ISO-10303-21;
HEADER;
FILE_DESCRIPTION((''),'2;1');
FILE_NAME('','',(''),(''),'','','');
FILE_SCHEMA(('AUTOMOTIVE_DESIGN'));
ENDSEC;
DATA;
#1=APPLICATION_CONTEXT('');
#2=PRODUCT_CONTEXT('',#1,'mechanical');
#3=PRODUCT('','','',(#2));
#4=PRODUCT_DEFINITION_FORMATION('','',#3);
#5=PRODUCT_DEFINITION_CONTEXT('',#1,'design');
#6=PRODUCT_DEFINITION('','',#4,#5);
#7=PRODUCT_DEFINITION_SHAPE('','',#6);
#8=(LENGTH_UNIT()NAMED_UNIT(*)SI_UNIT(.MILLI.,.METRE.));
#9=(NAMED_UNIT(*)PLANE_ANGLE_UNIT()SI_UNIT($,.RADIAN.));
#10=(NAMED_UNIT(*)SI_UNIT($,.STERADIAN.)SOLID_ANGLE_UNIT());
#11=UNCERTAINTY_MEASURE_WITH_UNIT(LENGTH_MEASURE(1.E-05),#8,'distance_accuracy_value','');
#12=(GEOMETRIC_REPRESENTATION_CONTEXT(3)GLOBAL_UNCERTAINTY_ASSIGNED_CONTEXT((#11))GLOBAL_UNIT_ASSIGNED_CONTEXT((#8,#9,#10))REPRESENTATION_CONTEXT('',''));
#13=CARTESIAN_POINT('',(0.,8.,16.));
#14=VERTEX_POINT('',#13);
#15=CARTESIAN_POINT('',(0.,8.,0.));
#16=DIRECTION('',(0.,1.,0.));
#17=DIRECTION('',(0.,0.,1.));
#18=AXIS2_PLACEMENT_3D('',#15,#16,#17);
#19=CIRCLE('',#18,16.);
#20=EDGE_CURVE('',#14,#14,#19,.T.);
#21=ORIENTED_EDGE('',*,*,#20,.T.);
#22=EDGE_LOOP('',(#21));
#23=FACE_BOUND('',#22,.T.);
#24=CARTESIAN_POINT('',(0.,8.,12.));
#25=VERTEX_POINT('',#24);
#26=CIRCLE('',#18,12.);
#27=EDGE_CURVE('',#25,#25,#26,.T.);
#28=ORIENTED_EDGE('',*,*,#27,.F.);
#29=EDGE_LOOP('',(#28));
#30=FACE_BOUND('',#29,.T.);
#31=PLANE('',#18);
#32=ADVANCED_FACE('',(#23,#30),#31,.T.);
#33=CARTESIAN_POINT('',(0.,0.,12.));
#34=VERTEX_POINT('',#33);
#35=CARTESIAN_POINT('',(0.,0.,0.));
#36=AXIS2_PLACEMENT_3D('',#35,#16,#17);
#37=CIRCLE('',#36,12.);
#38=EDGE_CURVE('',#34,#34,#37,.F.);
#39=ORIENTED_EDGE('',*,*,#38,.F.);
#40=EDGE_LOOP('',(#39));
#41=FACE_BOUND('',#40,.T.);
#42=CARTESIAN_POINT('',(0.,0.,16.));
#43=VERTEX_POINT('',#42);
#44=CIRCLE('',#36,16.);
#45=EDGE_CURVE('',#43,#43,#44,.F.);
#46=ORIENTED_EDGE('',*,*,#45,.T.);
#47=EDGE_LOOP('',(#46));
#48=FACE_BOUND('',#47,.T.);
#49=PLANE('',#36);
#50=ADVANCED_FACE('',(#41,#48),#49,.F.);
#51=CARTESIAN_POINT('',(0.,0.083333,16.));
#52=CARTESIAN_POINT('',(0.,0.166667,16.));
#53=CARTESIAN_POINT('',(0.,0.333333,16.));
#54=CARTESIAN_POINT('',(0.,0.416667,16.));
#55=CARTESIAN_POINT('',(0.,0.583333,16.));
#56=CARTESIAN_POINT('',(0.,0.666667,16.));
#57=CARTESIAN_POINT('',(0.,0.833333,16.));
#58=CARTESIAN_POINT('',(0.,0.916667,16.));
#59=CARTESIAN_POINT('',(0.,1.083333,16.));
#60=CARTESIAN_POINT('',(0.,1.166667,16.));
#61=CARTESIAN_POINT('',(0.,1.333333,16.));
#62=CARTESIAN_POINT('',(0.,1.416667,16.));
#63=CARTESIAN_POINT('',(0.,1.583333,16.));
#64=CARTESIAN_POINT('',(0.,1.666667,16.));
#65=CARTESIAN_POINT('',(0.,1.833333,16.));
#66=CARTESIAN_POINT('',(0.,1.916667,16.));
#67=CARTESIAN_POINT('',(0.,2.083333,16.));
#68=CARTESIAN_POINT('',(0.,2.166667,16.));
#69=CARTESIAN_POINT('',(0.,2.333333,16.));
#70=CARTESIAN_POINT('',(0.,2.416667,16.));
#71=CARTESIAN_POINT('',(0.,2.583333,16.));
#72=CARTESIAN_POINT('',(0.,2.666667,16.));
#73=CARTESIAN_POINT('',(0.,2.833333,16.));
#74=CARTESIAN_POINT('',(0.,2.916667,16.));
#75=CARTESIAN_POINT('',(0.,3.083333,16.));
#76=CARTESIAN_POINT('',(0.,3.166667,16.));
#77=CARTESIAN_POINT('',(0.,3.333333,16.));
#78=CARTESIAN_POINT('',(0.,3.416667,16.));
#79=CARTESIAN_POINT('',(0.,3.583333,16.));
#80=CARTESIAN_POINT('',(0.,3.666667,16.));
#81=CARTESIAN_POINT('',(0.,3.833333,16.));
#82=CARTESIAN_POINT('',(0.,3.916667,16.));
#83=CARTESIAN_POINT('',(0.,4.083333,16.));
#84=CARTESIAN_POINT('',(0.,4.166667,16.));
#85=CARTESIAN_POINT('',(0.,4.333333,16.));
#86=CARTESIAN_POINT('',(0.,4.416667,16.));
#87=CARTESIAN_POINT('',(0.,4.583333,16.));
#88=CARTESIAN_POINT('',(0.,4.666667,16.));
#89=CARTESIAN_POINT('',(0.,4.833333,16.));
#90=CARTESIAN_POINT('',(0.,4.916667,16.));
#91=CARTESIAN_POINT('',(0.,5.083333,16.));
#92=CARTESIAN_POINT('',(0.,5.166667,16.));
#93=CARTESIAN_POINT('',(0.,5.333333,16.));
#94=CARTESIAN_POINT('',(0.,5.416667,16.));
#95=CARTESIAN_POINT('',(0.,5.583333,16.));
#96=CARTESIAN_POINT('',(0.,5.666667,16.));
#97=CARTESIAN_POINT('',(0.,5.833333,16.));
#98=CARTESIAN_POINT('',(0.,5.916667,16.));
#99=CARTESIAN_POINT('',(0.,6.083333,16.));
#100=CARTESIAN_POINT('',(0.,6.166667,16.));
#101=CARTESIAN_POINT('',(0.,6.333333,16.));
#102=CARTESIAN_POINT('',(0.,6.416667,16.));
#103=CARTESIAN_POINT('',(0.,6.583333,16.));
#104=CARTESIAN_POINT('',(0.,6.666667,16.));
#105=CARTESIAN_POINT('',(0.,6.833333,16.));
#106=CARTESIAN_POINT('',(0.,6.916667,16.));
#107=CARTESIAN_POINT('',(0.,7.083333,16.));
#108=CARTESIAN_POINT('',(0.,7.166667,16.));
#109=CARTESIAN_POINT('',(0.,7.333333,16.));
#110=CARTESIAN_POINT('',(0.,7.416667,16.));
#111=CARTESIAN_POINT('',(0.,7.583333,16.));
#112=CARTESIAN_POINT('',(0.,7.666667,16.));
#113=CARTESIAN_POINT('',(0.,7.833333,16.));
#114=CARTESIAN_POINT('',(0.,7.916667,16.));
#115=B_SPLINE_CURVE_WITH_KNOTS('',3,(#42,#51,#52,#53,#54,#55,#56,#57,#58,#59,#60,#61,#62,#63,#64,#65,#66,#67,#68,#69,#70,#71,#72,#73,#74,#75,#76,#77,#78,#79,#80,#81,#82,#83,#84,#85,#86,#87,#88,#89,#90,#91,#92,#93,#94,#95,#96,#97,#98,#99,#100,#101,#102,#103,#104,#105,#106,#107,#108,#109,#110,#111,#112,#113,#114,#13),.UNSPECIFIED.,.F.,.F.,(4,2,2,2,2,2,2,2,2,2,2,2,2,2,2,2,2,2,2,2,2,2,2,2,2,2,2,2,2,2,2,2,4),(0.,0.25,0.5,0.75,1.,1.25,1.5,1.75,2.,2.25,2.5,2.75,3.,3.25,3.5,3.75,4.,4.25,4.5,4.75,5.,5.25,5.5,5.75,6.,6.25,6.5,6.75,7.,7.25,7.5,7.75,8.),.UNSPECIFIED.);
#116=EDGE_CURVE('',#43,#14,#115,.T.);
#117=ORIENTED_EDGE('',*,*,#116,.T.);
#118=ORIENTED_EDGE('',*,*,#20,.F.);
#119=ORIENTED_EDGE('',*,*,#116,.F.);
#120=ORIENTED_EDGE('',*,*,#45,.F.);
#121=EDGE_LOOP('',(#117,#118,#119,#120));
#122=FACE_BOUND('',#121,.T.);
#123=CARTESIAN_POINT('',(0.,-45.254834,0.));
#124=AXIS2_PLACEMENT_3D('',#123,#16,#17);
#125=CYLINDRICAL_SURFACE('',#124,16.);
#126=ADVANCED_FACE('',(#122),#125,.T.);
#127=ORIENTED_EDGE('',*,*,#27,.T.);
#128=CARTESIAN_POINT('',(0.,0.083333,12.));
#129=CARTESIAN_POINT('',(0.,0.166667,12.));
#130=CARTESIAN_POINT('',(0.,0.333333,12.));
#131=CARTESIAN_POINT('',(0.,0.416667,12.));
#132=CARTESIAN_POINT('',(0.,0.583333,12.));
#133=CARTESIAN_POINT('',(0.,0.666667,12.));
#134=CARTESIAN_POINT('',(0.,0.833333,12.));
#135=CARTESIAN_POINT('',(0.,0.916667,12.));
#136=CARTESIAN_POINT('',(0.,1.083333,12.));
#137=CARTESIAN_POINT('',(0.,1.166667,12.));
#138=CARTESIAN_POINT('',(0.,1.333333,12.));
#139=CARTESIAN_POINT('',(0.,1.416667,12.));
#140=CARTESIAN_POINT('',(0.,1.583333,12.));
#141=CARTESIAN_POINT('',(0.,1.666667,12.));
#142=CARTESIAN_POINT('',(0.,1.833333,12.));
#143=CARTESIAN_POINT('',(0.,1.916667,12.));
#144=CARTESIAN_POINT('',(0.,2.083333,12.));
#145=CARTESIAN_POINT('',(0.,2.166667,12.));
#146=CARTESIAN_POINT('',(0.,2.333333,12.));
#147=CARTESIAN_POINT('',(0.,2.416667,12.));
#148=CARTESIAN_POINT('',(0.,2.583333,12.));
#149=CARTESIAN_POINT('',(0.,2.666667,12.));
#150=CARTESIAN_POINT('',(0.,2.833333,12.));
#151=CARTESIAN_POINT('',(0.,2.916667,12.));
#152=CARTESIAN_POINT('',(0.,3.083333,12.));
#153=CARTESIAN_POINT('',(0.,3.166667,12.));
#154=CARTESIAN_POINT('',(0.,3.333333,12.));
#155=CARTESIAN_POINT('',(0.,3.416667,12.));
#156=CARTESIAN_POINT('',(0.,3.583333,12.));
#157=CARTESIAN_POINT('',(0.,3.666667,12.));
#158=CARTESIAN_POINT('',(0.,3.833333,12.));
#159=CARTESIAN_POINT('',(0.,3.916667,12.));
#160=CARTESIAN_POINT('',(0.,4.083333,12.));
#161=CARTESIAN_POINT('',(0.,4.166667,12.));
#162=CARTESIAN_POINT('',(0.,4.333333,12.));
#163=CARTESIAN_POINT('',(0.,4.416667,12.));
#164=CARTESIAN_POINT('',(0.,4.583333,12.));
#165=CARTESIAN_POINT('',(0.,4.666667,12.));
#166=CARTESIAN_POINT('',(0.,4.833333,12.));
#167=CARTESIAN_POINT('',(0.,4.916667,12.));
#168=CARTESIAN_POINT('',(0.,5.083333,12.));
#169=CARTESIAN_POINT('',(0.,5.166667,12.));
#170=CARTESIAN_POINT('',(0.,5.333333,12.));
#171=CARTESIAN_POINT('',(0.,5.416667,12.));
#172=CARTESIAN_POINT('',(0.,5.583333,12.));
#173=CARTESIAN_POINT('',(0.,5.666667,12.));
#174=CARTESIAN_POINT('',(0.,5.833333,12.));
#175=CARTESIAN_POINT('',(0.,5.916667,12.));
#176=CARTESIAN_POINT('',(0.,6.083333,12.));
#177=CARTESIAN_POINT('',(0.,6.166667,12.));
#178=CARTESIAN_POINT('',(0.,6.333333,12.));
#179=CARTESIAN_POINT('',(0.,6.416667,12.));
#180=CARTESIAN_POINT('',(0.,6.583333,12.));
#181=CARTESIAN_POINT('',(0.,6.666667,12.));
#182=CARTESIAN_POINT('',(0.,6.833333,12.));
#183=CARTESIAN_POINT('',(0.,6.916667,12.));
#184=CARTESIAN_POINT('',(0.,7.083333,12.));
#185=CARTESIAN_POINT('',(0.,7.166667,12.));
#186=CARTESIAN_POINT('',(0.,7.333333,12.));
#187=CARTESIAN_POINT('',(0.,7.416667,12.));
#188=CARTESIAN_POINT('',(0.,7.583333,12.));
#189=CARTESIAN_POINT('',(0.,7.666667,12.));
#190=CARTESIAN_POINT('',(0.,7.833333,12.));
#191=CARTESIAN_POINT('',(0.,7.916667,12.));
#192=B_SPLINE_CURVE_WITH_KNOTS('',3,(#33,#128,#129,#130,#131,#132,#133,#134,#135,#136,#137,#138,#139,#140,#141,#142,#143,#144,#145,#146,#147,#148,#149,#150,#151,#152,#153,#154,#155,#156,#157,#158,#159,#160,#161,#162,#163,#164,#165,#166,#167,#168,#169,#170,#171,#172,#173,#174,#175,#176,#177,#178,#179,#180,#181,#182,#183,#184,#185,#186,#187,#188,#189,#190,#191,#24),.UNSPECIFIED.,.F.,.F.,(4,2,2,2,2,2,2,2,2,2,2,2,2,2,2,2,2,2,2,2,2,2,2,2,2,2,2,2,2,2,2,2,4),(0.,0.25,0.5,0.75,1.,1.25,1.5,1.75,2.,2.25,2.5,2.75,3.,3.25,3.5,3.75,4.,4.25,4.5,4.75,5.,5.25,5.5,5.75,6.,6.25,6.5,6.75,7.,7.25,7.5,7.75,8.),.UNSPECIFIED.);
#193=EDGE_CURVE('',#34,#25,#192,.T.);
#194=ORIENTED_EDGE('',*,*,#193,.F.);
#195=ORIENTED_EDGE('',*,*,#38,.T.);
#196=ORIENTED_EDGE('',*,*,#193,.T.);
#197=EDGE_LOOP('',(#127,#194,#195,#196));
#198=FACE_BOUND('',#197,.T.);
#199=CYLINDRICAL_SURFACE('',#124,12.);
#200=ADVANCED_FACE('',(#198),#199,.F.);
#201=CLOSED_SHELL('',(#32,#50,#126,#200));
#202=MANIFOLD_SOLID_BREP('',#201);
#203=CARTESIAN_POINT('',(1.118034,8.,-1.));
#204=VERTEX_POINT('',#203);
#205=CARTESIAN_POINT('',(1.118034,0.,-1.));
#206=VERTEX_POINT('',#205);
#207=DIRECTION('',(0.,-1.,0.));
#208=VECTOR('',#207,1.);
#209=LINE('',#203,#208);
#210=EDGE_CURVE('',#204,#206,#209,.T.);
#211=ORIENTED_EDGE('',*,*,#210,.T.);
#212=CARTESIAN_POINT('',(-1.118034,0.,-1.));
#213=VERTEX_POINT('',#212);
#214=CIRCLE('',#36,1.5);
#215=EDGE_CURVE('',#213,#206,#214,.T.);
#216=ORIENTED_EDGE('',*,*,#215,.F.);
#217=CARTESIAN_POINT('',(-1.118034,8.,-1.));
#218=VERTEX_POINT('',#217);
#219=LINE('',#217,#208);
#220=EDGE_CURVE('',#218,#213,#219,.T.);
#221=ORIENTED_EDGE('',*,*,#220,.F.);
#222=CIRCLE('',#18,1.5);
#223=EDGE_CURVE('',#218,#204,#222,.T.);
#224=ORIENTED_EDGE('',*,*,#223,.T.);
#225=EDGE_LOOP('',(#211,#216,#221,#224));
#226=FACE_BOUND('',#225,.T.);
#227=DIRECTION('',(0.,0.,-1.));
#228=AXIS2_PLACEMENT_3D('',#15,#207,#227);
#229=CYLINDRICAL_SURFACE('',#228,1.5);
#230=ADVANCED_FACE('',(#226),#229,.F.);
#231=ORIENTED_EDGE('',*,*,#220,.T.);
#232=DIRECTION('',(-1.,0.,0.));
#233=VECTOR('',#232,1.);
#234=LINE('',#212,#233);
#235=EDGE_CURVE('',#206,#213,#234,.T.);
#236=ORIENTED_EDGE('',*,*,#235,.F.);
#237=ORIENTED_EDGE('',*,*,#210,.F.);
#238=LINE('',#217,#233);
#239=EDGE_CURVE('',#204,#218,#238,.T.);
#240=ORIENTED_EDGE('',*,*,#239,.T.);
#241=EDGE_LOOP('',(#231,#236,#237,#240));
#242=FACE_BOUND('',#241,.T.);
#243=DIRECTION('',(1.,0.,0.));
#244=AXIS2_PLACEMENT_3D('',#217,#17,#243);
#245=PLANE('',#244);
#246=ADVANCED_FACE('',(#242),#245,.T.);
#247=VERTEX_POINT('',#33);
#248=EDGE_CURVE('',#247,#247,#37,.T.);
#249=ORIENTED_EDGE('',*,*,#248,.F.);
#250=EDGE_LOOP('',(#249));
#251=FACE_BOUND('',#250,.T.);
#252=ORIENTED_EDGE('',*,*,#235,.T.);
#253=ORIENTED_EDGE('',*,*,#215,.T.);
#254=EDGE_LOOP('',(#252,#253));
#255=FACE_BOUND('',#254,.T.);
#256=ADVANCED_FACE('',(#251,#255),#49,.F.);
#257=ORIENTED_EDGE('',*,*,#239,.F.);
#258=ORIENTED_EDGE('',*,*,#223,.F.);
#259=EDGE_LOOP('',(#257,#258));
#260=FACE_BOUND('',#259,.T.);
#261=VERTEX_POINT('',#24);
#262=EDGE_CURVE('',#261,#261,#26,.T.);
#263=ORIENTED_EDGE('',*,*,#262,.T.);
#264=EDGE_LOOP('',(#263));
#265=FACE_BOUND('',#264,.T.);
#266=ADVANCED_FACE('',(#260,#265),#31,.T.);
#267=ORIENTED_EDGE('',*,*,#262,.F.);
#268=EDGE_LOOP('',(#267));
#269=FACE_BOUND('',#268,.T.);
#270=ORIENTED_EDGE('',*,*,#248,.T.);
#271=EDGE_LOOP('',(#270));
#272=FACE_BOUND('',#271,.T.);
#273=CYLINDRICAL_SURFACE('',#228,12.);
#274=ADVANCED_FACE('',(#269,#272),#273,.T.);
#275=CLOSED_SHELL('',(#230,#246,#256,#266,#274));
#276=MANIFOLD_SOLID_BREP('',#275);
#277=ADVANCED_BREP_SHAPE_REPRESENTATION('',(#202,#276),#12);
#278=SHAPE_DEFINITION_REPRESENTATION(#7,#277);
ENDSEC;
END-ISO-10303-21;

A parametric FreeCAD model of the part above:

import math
import FreeCAD as App
import Part
import Sketcher
from FreeCAD import Vector
Q = App.Units.Quantity

doc = App.newDocument("Part")
params = doc.addObject("Spreadsheet::Sheet", "Params")
for row, (alias, value) in enumerate([
    ("sketch1_diameter", "24 mm"),
    ("sketch1_radius", "1.5 mm"),
    ("pad1_length", "8 mm"),
    ("sketch2_diameter", "32 mm"),
    ("sketch2_diameter2", "24 mm"),
    ("pad2_length", "8 mm"),
], start=1):
    params.set(f"A{row}", alias)
    params.set(f"B{row}", "=" + value)
    params.setAlias(f"B{row}", alias)

body = doc.addObject("PartDesign::Body", "Body")

sketch1 = body.newObject("Sketcher::SketchObject", "Sketch")
sketch1.AttachmentSupport = (doc.getObject("XZ_Plane"), [""])
sketch1.MapMode = "FlatFace"
sketch1.addGeometry(Part.Circle(Vector(0, 0, 0), Vector(0, 0, 1), 12), False)
sketch1.addGeometry(Part.ArcOfCircle(Part.Circle(Vector(0, 0, 0), Vector(0, 0, 1), 1.5), math.radians(-41.810315), math.radians(221.810315)), False)
sketch1.addGeometry(Part.LineSegment(Vector(-1.118034, -1, 0), Vector(1.118034, -1, 0)), False)
sketch1.addConstraint(Sketcher.Constraint("Coincident", 1, 1, 2, 2))
sketch1.addConstraint(Sketcher.Constraint("Coincident", 2, 1, 1, 2))
sketch1.addConstraint(Sketcher.Constraint("Horizontal", 2))
sketch1.addConstraint(Sketcher.Constraint("Coincident", 0, 3, -1, 1))
sketch1.addConstraint(Sketcher.Constraint("Coincident", 1, 3, -1, 1))
sketch1.addConstraint(Sketcher.Constraint("Diameter", 0, Q("24 mm")))
sketch1.addConstraint(Sketcher.Constraint("Radius", 1, Q("1.5 mm")))
sketch1.addConstraint(Sketcher.Constraint("DistanceY", 1, 1, -1, 1, Q("1 mm")))
sketch1.setExpression("Constraints[5]", "Params.sketch1_diameter")
sketch1.setExpression("Constraints[6]", "Params.sketch1_radius")
pad1 = body.newObject("PartDesign::Pad", "Pad")
pad1.Profile = sketch1
pad1.setExpression("Length", "Params.pad1_length")
pad1.Reversed = True
body2 = doc.addObject("PartDesign::Body", "Body001")

sketch2 = body2.newObject("Sketcher::SketchObject", "Sketch001")
sketch2.AttachmentSupport = (doc.getObject("XZ_Plane001"), [""])
sketch2.MapMode = "FlatFace"
sketch2.AttachmentOffset = App.Placement(Vector(0, 0, -8), App.Rotation())
sketch2.addGeometry(Part.Circle(Vector(0, 0, 0), Vector(0, 0, 1), 16), False)
sketch2.addGeometry(Part.Circle(Vector(0, 0, 0), Vector(0, 0, 1), 12), False)
sketch2.addConstraint(Sketcher.Constraint("Coincident", 0, 3, -1, 1))
sketch2.addConstraint(Sketcher.Constraint("Coincident", 1, 3, -1, 1))
sketch2.addConstraint(Sketcher.Constraint("Diameter", 0, Q("32 mm")))
sketch2.addConstraint(Sketcher.Constraint("Diameter", 1, Q("24 mm")))
sketch2.setExpression("Constraints[2]", "Params.sketch2_diameter")
sketch2.setExpression("Constraints[3]", "Params.sketch2_diameter2")
pad2 = body2.newObject("PartDesign::Pad", "Pad001")
pad2.Profile = sketch2
pad2.setExpression("Length", "Params.pad2_length")

doc.recompute()
